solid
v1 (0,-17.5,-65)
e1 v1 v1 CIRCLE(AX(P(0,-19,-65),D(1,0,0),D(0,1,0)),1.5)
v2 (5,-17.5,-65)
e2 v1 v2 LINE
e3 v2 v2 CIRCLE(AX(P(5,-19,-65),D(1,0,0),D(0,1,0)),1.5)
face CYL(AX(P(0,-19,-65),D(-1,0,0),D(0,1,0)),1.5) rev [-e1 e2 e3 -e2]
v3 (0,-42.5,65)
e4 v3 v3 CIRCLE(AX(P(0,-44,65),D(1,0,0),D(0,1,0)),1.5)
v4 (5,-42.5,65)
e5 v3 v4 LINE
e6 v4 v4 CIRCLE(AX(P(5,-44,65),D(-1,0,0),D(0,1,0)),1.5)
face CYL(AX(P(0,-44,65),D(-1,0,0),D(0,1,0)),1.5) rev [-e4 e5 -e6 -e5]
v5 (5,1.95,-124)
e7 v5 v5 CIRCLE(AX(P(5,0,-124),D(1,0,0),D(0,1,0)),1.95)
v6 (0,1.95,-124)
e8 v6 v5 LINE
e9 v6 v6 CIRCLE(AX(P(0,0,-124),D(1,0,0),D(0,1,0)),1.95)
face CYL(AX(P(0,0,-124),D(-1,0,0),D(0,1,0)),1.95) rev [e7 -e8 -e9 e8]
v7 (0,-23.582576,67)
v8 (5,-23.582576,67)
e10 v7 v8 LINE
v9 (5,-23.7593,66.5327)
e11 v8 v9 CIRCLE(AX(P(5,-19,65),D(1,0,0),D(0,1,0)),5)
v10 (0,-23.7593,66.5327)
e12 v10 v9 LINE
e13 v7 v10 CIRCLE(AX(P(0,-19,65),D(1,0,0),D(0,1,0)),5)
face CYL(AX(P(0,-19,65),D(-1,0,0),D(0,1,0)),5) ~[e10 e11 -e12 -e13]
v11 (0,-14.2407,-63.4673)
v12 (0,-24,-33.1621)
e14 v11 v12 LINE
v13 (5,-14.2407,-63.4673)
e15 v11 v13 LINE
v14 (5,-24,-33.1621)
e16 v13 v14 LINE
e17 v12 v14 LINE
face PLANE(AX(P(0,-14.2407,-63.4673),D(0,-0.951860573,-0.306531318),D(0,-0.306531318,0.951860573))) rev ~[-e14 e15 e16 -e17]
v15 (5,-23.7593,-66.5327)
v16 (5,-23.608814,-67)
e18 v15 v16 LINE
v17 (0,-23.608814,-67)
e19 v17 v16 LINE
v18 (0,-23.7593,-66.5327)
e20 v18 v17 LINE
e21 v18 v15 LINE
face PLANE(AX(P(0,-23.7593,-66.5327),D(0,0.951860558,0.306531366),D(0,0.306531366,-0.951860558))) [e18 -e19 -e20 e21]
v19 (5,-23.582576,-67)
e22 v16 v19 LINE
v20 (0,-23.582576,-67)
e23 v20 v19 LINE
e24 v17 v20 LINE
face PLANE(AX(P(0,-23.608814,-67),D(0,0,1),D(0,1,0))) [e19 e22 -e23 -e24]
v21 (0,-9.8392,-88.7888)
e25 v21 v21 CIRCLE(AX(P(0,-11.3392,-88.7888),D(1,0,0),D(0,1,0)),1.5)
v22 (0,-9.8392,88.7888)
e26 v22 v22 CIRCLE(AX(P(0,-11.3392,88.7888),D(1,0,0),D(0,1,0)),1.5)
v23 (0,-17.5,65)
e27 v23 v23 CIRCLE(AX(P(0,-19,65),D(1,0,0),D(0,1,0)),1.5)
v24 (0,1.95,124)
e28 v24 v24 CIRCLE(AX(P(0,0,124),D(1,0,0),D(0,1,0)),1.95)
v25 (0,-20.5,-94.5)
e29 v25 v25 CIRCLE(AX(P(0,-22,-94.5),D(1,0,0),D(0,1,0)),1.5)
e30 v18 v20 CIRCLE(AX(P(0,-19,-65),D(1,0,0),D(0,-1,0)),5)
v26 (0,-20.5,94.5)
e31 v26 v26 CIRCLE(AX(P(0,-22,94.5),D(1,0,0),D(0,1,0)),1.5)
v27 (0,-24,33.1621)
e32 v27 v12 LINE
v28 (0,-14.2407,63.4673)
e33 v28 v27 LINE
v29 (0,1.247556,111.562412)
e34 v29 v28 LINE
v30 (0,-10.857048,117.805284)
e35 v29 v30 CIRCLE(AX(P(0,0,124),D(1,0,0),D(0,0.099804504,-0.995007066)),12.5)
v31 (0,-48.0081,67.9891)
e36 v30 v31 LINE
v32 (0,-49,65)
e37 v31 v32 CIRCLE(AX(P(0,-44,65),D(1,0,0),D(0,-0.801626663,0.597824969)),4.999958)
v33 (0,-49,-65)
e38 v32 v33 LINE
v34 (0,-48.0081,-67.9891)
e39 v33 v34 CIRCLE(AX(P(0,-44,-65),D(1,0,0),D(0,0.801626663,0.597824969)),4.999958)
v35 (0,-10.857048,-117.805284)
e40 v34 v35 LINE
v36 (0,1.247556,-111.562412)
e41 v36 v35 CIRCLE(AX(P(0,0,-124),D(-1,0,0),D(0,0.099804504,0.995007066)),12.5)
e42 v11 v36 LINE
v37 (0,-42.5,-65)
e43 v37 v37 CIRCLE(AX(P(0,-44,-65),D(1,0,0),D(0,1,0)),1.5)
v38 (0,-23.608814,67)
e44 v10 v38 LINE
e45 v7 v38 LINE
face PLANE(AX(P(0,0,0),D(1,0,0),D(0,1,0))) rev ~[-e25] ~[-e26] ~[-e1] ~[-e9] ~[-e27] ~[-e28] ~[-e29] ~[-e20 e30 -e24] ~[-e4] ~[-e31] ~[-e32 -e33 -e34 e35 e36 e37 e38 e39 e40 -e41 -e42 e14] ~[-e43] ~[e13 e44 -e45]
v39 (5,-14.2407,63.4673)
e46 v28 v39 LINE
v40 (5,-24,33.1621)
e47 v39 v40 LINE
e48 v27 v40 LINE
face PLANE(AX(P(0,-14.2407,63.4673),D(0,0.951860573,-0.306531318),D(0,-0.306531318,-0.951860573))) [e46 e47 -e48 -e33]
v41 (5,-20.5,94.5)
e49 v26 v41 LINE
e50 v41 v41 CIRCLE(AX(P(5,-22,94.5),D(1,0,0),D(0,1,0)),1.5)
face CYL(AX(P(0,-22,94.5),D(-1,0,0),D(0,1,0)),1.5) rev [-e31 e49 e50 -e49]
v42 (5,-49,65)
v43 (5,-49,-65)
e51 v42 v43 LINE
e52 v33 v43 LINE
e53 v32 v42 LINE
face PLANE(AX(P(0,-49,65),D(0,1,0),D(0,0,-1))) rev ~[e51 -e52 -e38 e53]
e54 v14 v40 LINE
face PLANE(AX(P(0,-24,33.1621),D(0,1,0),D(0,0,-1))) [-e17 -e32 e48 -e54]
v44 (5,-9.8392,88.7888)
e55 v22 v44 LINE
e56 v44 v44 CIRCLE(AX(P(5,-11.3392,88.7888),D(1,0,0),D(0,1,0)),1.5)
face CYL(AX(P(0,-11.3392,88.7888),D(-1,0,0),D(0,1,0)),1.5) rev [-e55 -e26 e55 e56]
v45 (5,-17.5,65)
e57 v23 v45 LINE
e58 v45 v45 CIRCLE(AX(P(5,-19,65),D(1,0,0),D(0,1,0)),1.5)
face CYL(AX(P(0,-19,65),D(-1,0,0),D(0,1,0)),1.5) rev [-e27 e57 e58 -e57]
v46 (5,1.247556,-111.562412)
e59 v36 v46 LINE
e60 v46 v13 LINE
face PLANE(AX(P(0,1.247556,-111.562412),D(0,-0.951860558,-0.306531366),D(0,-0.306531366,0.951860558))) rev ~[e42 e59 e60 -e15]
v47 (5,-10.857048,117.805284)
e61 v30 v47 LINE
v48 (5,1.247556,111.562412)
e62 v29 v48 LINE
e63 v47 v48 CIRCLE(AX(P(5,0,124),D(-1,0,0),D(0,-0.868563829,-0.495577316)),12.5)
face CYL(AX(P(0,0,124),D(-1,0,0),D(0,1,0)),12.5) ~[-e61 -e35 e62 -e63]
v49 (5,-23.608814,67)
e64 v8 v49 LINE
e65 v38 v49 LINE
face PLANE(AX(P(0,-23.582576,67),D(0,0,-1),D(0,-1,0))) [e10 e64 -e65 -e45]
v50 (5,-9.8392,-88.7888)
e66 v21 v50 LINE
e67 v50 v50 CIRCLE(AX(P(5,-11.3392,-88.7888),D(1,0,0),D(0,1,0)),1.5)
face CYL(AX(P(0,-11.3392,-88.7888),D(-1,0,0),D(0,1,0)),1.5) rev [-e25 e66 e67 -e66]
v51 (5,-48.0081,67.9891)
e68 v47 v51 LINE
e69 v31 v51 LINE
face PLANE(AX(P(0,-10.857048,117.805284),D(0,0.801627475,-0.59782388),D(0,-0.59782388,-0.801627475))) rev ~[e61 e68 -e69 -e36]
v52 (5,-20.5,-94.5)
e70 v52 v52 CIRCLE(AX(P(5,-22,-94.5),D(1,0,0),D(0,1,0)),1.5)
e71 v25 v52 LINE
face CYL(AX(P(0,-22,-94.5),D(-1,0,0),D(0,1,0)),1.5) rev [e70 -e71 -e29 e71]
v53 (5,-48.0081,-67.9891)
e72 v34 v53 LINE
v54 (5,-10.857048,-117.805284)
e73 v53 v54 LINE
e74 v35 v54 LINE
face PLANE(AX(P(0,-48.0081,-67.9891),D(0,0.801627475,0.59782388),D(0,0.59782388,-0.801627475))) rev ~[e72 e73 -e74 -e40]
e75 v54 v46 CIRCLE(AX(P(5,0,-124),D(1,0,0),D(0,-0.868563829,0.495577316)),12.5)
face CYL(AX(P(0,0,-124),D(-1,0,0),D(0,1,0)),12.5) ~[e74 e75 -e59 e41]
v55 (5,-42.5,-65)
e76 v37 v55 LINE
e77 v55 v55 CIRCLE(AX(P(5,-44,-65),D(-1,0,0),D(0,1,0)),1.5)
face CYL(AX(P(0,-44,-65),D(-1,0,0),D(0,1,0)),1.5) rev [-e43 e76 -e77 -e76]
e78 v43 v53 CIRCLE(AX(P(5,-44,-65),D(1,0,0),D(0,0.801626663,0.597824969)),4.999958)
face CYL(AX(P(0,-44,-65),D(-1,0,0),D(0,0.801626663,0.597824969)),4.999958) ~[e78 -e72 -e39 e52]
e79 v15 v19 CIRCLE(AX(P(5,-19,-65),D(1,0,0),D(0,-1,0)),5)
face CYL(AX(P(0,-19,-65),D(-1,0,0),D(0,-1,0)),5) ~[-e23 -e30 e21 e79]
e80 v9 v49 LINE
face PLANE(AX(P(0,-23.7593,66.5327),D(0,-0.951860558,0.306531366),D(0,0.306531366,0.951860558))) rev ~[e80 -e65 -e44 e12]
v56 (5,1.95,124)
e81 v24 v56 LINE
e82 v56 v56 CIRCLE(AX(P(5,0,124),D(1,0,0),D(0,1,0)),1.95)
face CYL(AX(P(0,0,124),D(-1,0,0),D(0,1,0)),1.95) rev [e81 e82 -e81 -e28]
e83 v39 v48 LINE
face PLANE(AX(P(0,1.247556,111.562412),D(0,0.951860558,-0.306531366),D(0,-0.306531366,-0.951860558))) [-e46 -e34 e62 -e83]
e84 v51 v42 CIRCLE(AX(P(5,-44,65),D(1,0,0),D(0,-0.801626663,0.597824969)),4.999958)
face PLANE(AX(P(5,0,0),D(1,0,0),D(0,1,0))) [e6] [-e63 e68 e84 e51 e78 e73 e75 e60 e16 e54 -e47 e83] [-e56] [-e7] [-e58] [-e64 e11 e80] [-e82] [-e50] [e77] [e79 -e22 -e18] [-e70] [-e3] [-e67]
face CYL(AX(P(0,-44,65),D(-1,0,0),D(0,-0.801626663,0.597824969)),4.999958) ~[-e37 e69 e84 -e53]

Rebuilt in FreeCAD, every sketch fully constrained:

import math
import FreeCAD as App
import Part
import Sketcher
Q = App.Units.Quantity

doc = App.newDocument("Part")
params = doc.addObject("Spreadsheet::Sheet", "Params")
for row, (alias, value) in enumerate([
    ("sketch1_diameter", "3 mm"),
    ("sketch1_diameter2", "3 mm"),
    ("sketch1_diameter3", "3 mm"),
    ("sketch1_diameter4", "3 mm"),
    ("sketch1_diameter5", "3 mm"),
    ("pad1_length", "5 mm"),
], start=1):
    params.set(f"A{row}", alias)
    params.set(f"B{row}", "=" + value)
    params.setAlias(f"B{row}", alias)

body = doc.addObject("PartDesign::Body", "Body")

# Sketch on YZ plane
sketch1 = body.newObject("Sketcher::SketchObject", "Sketch")
sketch1.AttachmentSupport = (doc.getObject("YZ_Plane"), [""])
sketch1.MapMode = "FlatFace"
sketch1.addGeometry([
    Part.LineSegment(App.Vector(-10.857048, 117.805284, 0), App.Vector(-48.0081, 67.9891, 0)),  # 0
    Part.ArcOfCircle(Part.Circle(App.Vector(-44, 65, 0), App.Vector(0, 0, 1), 4.999958), math.radians(143.285719), math.radians(180)),  # 1
    Part.LineSegment(App.Vector(-49, 65, 0), App.Vector(-49, -65, 0)),  # 2
    Part.ArcOfCircle(Part.Circle(App.Vector(-44, -65, 0), App.Vector(0, 0, 1), 4.999958), math.radians(180), math.radians(216.714281)),  # 3
    Part.LineSegment(App.Vector(-48.0081, -67.9891, 0), App.Vector(-10.857048, -117.805284, 0)),  # 4
    Part.ArcOfCircle(Part.Circle(App.Vector(0, -124, 0), App.Vector(0, 0, 1), 12.5), math.radians(150.292174), math.radians(444.272087)),  # 5
    Part.LineSegment(App.Vector(1.247556, -111.562412, 0), App.Vector(-14.2407, -63.4673, 0)),  # 6
    Part.LineSegment(App.Vector(-14.2407, -63.4673, 0), App.Vector(-24, -33.1621, 0)),  # 7
    Part.LineSegment(App.Vector(-24, -33.1621, 0), App.Vector(-24, 33.1621, 0)),  # 8
    Part.LineSegment(App.Vector(-24, 33.1621, 0), App.Vector(-14.2407, 63.4673, 0)),  # 9
    Part.LineSegment(App.Vector(-14.2407, 63.4673, 0), App.Vector(1.247556, 111.562412, 0)),  # 10
    Part.ArcOfCircle(Part.Circle(App.Vector(0, 124, 0), App.Vector(0, 0, 1), 12.5), math.radians(-84.272087), math.radians(209.707826)),  # 11
    Part.Circle(App.Vector(0, 124, 0), App.Vector(0, 0, 1), 1.95),  # 12
    Part.Circle(App.Vector(-22, 94.5, 0), App.Vector(0, 0, 1), 1.5),  # 13
    Part.LineSegment(App.Vector(-23.608814, 67, 0), App.Vector(-23.582576, 67, 0)),  # 14
    Part.ArcOfCircle(Part.Circle(App.Vector(-19, 65, 0), App.Vector(0, 0, 1), 5), math.radians(156.421822), math.radians(162.149201)),  # 15
    Part.LineSegment(App.Vector(-23.7593, 66.5327, 0), App.Vector(-23.608814, 67, 0)),  # 16
    Part.Circle(App.Vector(-11.3392, 88.7888, 0), App.Vector(0, 0, 1), 1.5),  # 17
    Part.Circle(App.Vector(-44, 65, 0), App.Vector(0, 0, 1), 1.5),  # 18
    Part.Circle(App.Vector(-19, 65, 0), App.Vector(0, 0, 1), 1.5),  # 19
    Part.Circle(App.Vector(-44, -65, 0), App.Vector(0, 0, 1), 1.5),  # 20
    Part.Circle(App.Vector(-22, -94.5, 0), App.Vector(0, 0, 1), 1.5),  # 21
    Part.LineSegment(App.Vector(-23.608814, -67, 0), App.Vector(-23.7593, -66.5327, 0)),  # 22
    Part.ArcOfCircle(Part.Circle(App.Vector(-19, -65, 0), App.Vector(0, 0, 1), 5), math.radians(-162.149201), math.radians(-156.421822)),  # 23
    Part.LineSegment(App.Vector(-23.582576, -67, 0), App.Vector(-23.608814, -67, 0)),  # 24
    Part.Circle(App.Vector(-11.3392, -88.7888, 0), App.Vector(0, 0, 1), 1.5),  # 25
    Part.Circle(App.Vector(0, -124, 0), App.Vector(0, 0, 1), 1.95),  # 26
    Part.Circle(App.Vector(-19, -65, 0), App.Vector(0, 0, 1), 1.5),  # 27
], False)
sketch1.addConstraint([
    Sketcher.Constraint("Coincident", 0, 2, 1, 1),
    Sketcher.Constraint("Coincident", 1, 2, 2, 1),
    Sketcher.Constraint("Coincident", 2, 2, 3, 1),
    Sketcher.Constraint("Coincident", 3, 2, 4, 1),
    Sketcher.Constraint("Coincident", 4, 2, 5, 1),
    Sketcher.Constraint("Coincident", 5, 2, 6, 1),
    Sketcher.Constraint("Coincident", 6, 2, 7, 1),
    Sketcher.Constraint("Coincident", 7, 2, 8, 1),
    Sketcher.Constraint("Coincident", 8, 2, 9, 1),
    Sketcher.Constraint("Coincident", 9, 2, 10, 1),
    Sketcher.Constraint("Coincident", 10, 2, 11, 1),
    Sketcher.Constraint("Coincident", 11, 2, 0, 1),
    Sketcher.Constraint("Coincident", 14, 2, 15, 1),
    Sketcher.Constraint("Coincident", 15, 2, 16, 1),
    Sketcher.Constraint("Coincident", 16, 2, 14, 1),
    Sketcher.Constraint("Coincident", 22, 2, 23, 1),
    Sketcher.Constraint("Coincident", 23, 2, 24, 1),
    Sketcher.Constraint("Coincident", 24, 2, 22, 1),
    Sketcher.Constraint("Vertical", 2),
    Sketcher.Constraint("Vertical", 8),
    Sketcher.Constraint("Horizontal", 14),
    Sketcher.Constraint("Horizontal", 24),
    Sketcher.Constraint("Coincident", 12, 3, 11, 3),
    Sketcher.Constraint("Coincident", 18, 3, 1, 3),
    Sketcher.Constraint("Coincident", 19, 3, 15, 3),
    Sketcher.Constraint("Coincident", 20, 3, 3, 3),
    Sketcher.Constraint("Coincident", 26, 3, 5, 3),
    Sketcher.Constraint("Coincident", 27, 3, 23, 3),
    Sketcher.Constraint("PointOnObject", 5, 3, -2),
    Sketcher.Constraint("PointOnObject", 11, 3, -2),
    Sketcher.Constraint("Diameter", 13, Q("3 mm")),
    Sketcher.Constraint("Diameter", 17, Q("3 mm")),
    Sketcher.Constraint("Diameter", 18, Q("3 mm")),
    Sketcher.Constraint("Diameter", 19, Q("3 mm")),
    Sketcher.Constraint("Diameter", 20, Q("3 mm")),
    Sketcher.Constraint("Diameter", 21, Q("3 mm")),
    Sketcher.Constraint("Diameter", 25, Q("3 mm")),
    Sketcher.Constraint("Diameter", 27, Q("3 mm")),
    Sketcher.Constraint("Radius", 1, Q("5 mm")),
    Sketcher.Constraint("Radius", 3, Q("5 mm")),
    Sketcher.Constraint("Radius", 15, Q("5 mm")),
    Sketcher.Constraint("Radius", 23, Q("5 mm")),
    Sketcher.Constraint("Diameter", 12, Q("3.9 mm")),
    Sketcher.Constraint("Diameter", 26, Q("3.9 mm")),
    Sketcher.Constraint("Radius", 5, Q("12.5 mm")),
    Sketcher.Constraint("Radius", 11, Q("12.5 mm")),
    Sketcher.Constraint("DistanceY", -1, 1, 1, 3, Q("65 mm")),
    Sketcher.Constraint("DistanceY", 3, 3, -1, 1, Q("65 mm")),
    Sketcher.Constraint("DistanceY", -1, 1, 15, 3, Q("65 mm")),
    Sketcher.Constraint("DistanceY", 23, 3, -1, 1, Q("65 mm")),
    Sketcher.Constraint("DistanceY", -1, 1, 1, 2, Q("65 mm")),
    Sketcher.Constraint("DistanceY", 2, 2, -1, 1, Q("65 mm")),
    Sketcher.Constraint("DistanceY", 5, 3, 3, 3, Q("59 mm")),
    Sketcher.Constraint("DistanceY", 1, 3, 11, 3, Q("59 mm")),
    Sketcher.Constraint("DistanceX", 1, 3, 15, 3, Q("25 mm")),
    Sketcher.Constraint("DistanceX", 13, 3, 15, 3, Q("3 mm")),
    Sketcher.Constraint("DistanceX", 21, 3, 15, 3, Q("3 mm")),
    Sketcher.Constraint("DistanceX", 3, 3, 23, 3, Q("25 mm")),
    Sketcher.Constraint("DistanceX", 1, 2, 8, 2, Q("25 mm")),
    Sketcher.Constraint("DistanceY", 15, 3, 14, 2, Q("2 mm")),
    Sketcher.Constraint("DistanceY", 23, 2, 23, 3, Q("2 mm")),
    Sketcher.Constraint("DistanceX", 1, 3, -1, 1, Q("44 mm")),
    Sketcher.Constraint("DistanceY", -1, 1, 13, 3, Q("94.5 mm")),
    Sketcher.Constraint("DistanceY", 21, 3, -1, 1, Q("94.5 mm")),
    Sketcher.Constraint("Distance", 16, Q("0.491 mm")),
    Sketcher.Constraint("Distance", 22, Q("0.491 mm")),
    Sketcher.Constraint("DistanceX", 14, 1, 14, 2, Q("0.0262 mm")),
    Sketcher.Constraint("DistanceX", 24, 2, 24, 1, Q("0.0262 mm")),
    Sketcher.Constraint("DistanceY", 8, 1, 8, 2, Q("66.3242 mm")),
    Sketcher.Constraint("DistanceX", 0, 2, -1, 1, Q("48.008 mm")),
    Sketcher.Constraint("DistanceX", 3, 2, -1, 1, Q("48.008 mm")),
    Sketcher.Constraint("DistanceX", 4, 2, -1, 1, Q("10.857 mm")),
    Sketcher.Constraint("DistanceY", 7, 2, -1, 1, Q("33.162 mm")),
    Sketcher.Constraint("DistanceX", 11, 2, -1, 1, Q("10.857 mm")),
    Sketcher.Constraint("DistanceY", 9, 2, 10, 2, Q("48.095 mm")),
    Sketcher.Constraint("DistanceX", 16, 2, 9, 2, Q("9.368 mm")),
    Sketcher.Constraint("DistanceX", 24, 2, 6, 2, Q("9.368 mm")),
    Sketcher.Constraint("Distance", 6, Q("50.5275 mm")),
    Sketcher.Constraint("Distance", 7, Q("31.8379 mm")),
    Sketcher.Constraint("Distance", 9, Q("31.8379 mm")),
    Sketcher.Constraint("DistanceX", 17, 3, -1, 1, Q("11.3392 mm")),
    Sketcher.Constraint("DistanceY", -1, 1, 17, 3, Q("88.7888 mm")),
    Sketcher.Constraint("DistanceX", 25, 3, -1, 1, Q("11.3392 mm")),
    Sketcher.Constraint("DistanceY", 25, 3, -1, 1, Q("88.7888 mm")),
])
sketch1.setExpression("Constraints[30]", "Params.sketch1_diameter")
sketch1.setExpression("Constraints[31]", "Params.sketch1_diameter2")
sketch1.setExpression("Constraints[32]", "Params.sketch1_diameter3")
sketch1.setExpression("Constraints[33]", "Params.sketch1_diameter4")
sketch1.setExpression("Constraints[34]", "Params.sketch1_diameter5")
pad1 = body.newObject("PartDesign::Pad", "Pad")
pad1.Profile = sketch1
pad1.setExpression("Length", "Params.pad1_length")

doc.recompute()
